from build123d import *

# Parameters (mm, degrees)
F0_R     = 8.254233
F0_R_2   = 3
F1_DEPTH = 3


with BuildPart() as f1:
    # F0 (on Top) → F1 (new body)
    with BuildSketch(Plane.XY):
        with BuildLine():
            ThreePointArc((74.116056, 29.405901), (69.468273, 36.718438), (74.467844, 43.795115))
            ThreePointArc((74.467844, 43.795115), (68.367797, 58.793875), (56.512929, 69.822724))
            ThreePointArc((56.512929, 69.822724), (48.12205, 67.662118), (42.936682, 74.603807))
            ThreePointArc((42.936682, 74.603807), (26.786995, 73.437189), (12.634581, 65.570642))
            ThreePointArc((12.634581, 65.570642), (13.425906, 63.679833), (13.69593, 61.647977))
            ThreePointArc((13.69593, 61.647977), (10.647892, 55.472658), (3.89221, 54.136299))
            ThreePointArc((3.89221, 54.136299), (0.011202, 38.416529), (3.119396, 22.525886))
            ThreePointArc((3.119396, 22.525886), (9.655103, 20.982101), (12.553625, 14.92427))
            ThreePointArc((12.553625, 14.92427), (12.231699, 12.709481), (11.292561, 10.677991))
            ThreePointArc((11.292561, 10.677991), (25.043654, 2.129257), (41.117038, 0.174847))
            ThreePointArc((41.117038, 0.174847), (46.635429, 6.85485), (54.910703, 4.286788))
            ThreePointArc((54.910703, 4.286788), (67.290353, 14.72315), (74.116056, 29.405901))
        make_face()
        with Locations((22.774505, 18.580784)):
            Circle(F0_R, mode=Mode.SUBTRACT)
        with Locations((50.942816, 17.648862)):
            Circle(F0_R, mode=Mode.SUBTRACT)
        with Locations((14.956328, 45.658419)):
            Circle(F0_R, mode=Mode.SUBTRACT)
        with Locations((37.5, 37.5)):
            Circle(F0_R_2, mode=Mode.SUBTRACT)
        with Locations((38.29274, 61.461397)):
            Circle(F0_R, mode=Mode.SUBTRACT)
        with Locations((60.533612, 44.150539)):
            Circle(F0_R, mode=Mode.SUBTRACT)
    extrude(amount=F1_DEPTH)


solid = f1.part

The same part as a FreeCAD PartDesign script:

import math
import FreeCAD as App
import Part
import Sketcher

V = App.Vector
Q = App.Units.Quantity

doc = App.newDocument("Part")
body = doc.addObject("PartDesign::Body", "Body")

# Sketch on XY plane
sketch1 = body.newObject("Sketcher::SketchObject", "Sketch")
sketch1.AttachmentSupport = (doc.getObject("XY_Plane"), [""])
sketch1.MapMode = "FlatFace"
sketch1.addGeometry([
    Part.ArcOfCircle(Part.Circle(V(77.2, 36.5, 0), V(0, 0, 1), 7.8), math.radians(111), math.radians(246)),  # 0
    Part.ArcOfCircle(Part.Circle(V(37.5, 37.5, 0), V(0, 0, 1), 37.5), math.radians(10), math.radians(60)),  # 1
    Part.ArcOfCircle(Part.Circle(V(50.7, 75, 0), V(0, 0, 1), 7.8), math.radians(-177), math.radians(-42)),  # 2
    Part.ArcOfCircle(Part.Circle(V(37.5, 37.5, 0), V(0, 0, 1), 37.5), math.radians(82), math.radians(132)),  # 3
    Part.ArcOfCircle(Part.Circle(V(5.9, 61.6, 0), V(0, 0, 1), 7.8), math.radians(0), math.radians(30)),  # 4
    Part.ArcOfCircle(Part.Circle(V(5.9, 61.6, 0), V(0, 0, 1), 7.8), math.radians(-105), math.radians(0)),  # 5
    Part.ArcOfCircle(Part.Circle(V(37.5, 37.5, 0), V(0, 0, 1), 37.5), math.radians(154), math.radians(204)),  # 6
    Part.ArcOfCircle(Part.Circle(V(4.8, 14.9, 0), V(0, 0, 1), 7.8), math.radians(0), math.radians(102)),  # 7
    Part.ArcOfCircle(Part.Circle(V(4.8, 14.9, 0), V(0, 0, 1), 7.8), math.radians(-33), math.radians(0)),  # 8
    Part.ArcOfCircle(Part.Circle(V(37.5, 37.5, 0), V(0, 0, 1), 37.5), math.radians(-134), math.radians(-84)),  # 9
    Part.ArcOfCircle(Part.Circle(V(48.9, -0.6, 0), V(0, 0, 1), 7.8), math.radians(39), math.radians(174)),  # 10
    Part.ArcOfCircle(Part.Circle(V(37.5, 37.5, 0), V(0, 0, 1), 37.5), math.radians(-62), math.radians(-12)),  # 11
    Part.Circle(V(22.8, 18.6, 0), V(0, 0, 1), 8.3),  # 12
    Part.Circle(V(37.5, 37.5, 0), V(0, 0, 1), 3),  # 13
    Part.Circle(V(50.9, 17.6, 0), V(0, 0, 1), 8.3),  # 14
    Part.Circle(V(15, 45.7, 0), V(0, 0, 1), 8.3),  # 15
    Part.Circle(V(60.5, 44.2, 0), V(0, 0, 1), 8.3),  # 16
    Part.Circle(V(38.3, 61.5, 0), V(0, 0, 1), 8.3),  # 17
], False)
sketch1.addConstraint([
    Sketcher.Constraint("Coincident", 0, 1, 1, 1),
    Sketcher.Constraint("Coincident", 1, 2, 2, 2),
    Sketcher.Constraint("Coincident", 2, 1, 3, 1),
    Sketcher.Constraint("Coincident", 3, 2, 4, 2),
    Sketcher.Constraint("Tangent", 4, 1, 5, 2),
    Sketcher.Constraint("Coincident", 5, 1, 6, 1),
    Sketcher.Constraint("Coincident", 6, 2, 7, 2),
    Sketcher.Constraint("Tangent", 7, 1, 8, 2),
    Sketcher.Constraint("Coincident", 8, 1, 9, 1),
    Sketcher.Constraint("Coincident", 9, 2, 10, 2),
    Sketcher.Constraint("Coincident", 10, 1, 11, 1),
    Sketcher.Constraint("Coincident", 11, 2, 0, 2),
    Sketcher.Constraint("Coincident", 3, 3, 1, 3),
    Sketcher.Constraint("Coincident", 6, 3, 1, 3),
    Sketcher.Constraint("Coincident", 9, 3, 1, 3),
    Sketcher.Constraint("Coincident", 11, 3, 1, 3),
    Sketcher.Constraint("Coincident", 13, 3, 1, 3),
    Sketcher.Constraint("Equal", 0, 2),
    Sketcher.Constraint("Equal", 2, 5),
    Sketcher.Constraint("Equal", 5, 7),
    Sketcher.Constraint("Equal", 6, 9),
    Sketcher.Constraint("Equal", 7, 10),
    Sketcher.Constraint("Equal", 3, 11),
    Sketcher.Constraint("Equal", 12, 14),
    Sketcher.Constraint("Equal", 14, 15),
    Sketcher.Constraint("Equal", 15, 16),
    Sketcher.Constraint("Equal", 16, 17),
    Sketcher.Constraint("Horizontal", 5, 3, 4, 1),
    Sketcher.Constraint("Diameter", 13, Q("6 mm")),
    Sketcher.Constraint("Radius", 6, Q("37.500001 mm")),
    Sketcher.Constraint("Radius", 11, Q("37.499998 mm")),
    Sketcher.Constraint("DistanceY", -1, 1, 2, 3, Q("75 mm")),
    Sketcher.Constraint("DistanceX", -1, 1, 3, 3, Q("37.499999 mm")),
    Sketcher.Constraint("DistanceY", -1, 1, 6, 3, Q("37.5 mm")),
    Sketcher.Constraint("Radius", 0, Q("7.77961 mm")),
    Sketcher.Constraint("Radius", 4, Q("7.77963 mm")),
    Sketcher.Constraint("Diameter", 12, Q("16.508466 mm")),
    Sketcher.Constraint("Radius", 1, Q("37.499994 mm")),
    Sketcher.Constraint("Radius", 8, Q("7.779593 mm")),
    Sketcher.Constraint("DistanceY", -1, 1, 0, 3, Q("36.528298 mm")),
    Sketcher.Constraint("DistanceX", -1, 1, 4, 3, Q("5.9163 mm")),
    Sketcher.Constraint("DistanceY", -1, 1, 5, 1, Q("54.136299 mm")),
    Sketcher.Constraint("DistanceY", -1, 1, 11, 2, Q("29.405901 mm")),
    Sketcher.Constraint("DistanceY", 7, 3, 4, 3, Q("46.723701 mm")),
    Sketcher.Constraint("DistanceX", 3, 2, 2, 1, Q("30.302101 mm")),
    Sketcher.Constraint("DistanceX", 4, 1, 15, 3, Q("1.260398 mm")),
    Sketcher.Constraint("DistanceX", 12, 3, 10, 1, Q("32.136198 mm")),
    Sketcher.Constraint("DistanceX", 11, 3, 10, 1, Q("17.410702 mm")),
    Sketcher.Constraint("DistanceX", -1, 1, 10, 3, Q("48.85791 mm")),
    Sketcher.Constraint("DistanceY", -1, 1, 15, 3, Q("45.658419 mm")),
    Sketcher.Constraint("DistanceX", -1, 1, 16, 3, Q("60.533612 mm")),
    Sketcher.Constraint("DistanceY", -1, 1, 16, 3, Q("44.150539 mm")),
    Sketcher.Constraint("DistanceX", -1, 1, 17, 3, Q("38.29274 mm")),
    Sketcher.Constraint("DistanceY", -1, 1, 7, 1, Q("14.92427 mm")),
    Sketcher.Constraint("DistanceX", -1, 1, 8, 1, Q("11.292561 mm")),
    Sketcher.Constraint("DistanceY", 8, 3, 12, 3, Q("3.656519 mm")),
    Sketcher.Constraint("DistanceX", 1, 3, 14, 3, Q("13.442811 mm")),
    Sketcher.Constraint("DistanceY", 14, 3, 1, 3, Q("19.851142 mm")),
    Sketcher.Constraint("DistanceY", 17, 3, 2, 1, Q("13.14241 mm")),
])
pad1 = body.newObject("PartDesign::Pad", "Pad")
pad1.Profile = sketch1
pad1.Length = 3

doc.recompute()
